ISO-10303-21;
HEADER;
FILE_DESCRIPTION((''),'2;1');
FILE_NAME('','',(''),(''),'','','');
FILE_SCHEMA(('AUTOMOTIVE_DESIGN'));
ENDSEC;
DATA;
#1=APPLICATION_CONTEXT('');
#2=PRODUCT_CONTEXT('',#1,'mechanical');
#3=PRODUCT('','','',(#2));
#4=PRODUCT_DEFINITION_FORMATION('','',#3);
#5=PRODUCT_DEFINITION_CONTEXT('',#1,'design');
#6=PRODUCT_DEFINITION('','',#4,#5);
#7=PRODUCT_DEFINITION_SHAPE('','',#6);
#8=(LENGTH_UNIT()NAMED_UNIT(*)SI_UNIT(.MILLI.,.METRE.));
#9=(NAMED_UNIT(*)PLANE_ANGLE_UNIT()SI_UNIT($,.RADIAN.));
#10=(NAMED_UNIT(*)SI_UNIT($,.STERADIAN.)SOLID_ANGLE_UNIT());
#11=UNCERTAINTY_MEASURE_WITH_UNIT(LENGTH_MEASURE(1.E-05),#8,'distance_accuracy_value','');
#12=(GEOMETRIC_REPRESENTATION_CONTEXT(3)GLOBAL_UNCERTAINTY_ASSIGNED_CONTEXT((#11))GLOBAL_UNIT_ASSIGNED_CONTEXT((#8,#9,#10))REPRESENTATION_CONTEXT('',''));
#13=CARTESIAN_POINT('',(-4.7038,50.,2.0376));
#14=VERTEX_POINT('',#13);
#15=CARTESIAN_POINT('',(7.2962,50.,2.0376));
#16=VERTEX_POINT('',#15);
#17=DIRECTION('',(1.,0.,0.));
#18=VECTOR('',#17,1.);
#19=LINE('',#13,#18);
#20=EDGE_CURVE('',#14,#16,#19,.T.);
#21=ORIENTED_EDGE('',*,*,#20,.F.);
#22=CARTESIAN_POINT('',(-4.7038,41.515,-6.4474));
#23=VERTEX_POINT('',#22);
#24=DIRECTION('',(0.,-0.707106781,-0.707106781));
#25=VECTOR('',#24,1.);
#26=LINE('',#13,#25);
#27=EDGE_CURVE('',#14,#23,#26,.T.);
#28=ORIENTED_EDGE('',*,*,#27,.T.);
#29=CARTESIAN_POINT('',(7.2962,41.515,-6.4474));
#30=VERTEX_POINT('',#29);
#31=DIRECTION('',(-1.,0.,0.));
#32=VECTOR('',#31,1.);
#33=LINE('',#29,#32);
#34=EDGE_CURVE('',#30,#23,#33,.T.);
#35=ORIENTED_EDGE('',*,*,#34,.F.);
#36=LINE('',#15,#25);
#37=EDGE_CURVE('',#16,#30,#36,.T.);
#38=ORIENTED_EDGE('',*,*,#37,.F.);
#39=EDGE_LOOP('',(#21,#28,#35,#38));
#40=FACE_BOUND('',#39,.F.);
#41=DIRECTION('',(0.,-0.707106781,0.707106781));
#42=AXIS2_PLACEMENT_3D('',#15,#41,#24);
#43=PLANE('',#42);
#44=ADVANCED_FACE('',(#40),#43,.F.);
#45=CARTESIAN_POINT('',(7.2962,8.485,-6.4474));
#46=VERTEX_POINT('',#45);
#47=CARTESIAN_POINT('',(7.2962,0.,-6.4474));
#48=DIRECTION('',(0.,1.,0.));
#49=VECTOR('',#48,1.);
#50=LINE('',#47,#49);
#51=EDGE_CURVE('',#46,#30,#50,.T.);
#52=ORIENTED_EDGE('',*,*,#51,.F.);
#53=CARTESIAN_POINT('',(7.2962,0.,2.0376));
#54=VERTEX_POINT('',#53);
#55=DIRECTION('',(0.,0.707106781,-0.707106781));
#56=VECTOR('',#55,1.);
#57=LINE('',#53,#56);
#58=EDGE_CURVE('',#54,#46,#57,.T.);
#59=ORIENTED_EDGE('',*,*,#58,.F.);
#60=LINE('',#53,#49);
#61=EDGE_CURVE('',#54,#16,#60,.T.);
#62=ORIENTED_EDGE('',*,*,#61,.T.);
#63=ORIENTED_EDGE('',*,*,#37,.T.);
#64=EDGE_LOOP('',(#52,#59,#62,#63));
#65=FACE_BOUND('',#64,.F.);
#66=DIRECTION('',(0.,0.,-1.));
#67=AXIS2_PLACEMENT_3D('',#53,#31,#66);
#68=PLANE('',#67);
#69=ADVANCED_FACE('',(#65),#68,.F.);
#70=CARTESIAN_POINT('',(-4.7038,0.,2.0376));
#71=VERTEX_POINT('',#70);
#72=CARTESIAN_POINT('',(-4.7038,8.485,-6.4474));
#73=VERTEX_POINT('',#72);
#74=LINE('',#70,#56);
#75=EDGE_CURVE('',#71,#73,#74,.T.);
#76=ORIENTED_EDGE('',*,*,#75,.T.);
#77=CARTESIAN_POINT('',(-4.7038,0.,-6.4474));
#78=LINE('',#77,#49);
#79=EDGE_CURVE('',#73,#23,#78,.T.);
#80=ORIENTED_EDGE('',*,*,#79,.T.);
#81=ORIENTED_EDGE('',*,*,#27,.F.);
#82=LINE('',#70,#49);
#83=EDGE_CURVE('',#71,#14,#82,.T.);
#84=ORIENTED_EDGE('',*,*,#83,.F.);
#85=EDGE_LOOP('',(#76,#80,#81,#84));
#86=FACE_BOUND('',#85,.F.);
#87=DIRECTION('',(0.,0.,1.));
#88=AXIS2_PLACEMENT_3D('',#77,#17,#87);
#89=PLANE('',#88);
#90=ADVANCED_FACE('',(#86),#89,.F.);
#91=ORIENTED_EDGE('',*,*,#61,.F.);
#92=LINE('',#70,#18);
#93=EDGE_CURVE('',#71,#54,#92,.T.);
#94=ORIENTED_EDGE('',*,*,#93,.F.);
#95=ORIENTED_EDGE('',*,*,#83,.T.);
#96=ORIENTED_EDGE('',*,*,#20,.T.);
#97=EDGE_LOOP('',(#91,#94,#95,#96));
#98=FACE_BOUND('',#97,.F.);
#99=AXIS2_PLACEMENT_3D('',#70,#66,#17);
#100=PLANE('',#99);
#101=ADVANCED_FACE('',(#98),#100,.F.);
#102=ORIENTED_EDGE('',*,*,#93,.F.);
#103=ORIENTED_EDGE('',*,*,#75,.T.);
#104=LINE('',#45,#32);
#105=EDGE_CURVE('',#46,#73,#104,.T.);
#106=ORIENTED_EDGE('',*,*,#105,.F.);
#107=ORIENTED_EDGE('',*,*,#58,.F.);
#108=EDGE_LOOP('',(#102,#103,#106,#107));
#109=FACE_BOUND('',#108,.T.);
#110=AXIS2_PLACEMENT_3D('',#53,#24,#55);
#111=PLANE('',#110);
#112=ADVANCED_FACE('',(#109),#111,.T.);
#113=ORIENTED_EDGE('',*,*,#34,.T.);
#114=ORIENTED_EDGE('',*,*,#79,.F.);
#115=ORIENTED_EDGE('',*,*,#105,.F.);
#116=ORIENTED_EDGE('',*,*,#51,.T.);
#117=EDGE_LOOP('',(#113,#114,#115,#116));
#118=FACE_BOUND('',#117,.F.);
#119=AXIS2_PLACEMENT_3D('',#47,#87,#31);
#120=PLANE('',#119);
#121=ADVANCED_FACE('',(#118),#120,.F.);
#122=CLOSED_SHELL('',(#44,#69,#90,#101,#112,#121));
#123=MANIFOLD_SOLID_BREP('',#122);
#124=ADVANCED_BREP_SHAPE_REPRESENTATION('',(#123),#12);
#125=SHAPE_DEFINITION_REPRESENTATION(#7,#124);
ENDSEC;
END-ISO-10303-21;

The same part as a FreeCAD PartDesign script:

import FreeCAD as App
import Part
import Sketcher
from FreeCAD import Vector
Q = App.Units.Quantity


def add_polygon(sketch, points):
    """Adds a closed chain of lines whose ends are joined by coincident constraints."""
    first, n = sketch.GeometryCount, len(points)
    for a, b in zip(points, points[1:] + points[:1]):
        sketch.addGeometry(Part.LineSegment(App.Vector(*a, 0), App.Vector(*b, 0)), False)
    for i in range(n):
        sketch.addConstraint(Sketcher.Constraint("Coincident", first + i, 2, first + (i + 1) % n, 1))

doc = App.newDocument("Part")
body = doc.addObject("PartDesign::Body", "Body")

# Sketch on XZ plane
sketch1 = body.newObject("Sketcher::SketchObject", "Sketch")
sketch1.AttachmentSupport = (doc.getObject("XZ_Plane"), [""])
sketch1.MapMode = "FlatFace"
add_polygon(sketch1, [(-4.7038, -6.4474), (-4.7038, 2.0376), (7.2962, 2.0376), (7.2962, -6.4474)])  # lines 0-3
sketch1.addConstraint(Sketcher.Constraint("Vertical", 0))
sketch1.addConstraint(Sketcher.Constraint("Horizontal", 1))
sketch1.addConstraint(Sketcher.Constraint("Vertical", 2))
sketch1.addConstraint(Sketcher.Constraint("Horizontal", 3))
sketch1.addConstraint(Sketcher.Constraint("DistanceX", 1, 1, 1, 2, Q("12 mm")))
sketch1.addConstraint(Sketcher.Constraint("DistanceY", 0, 1, 0, 2, Q("8.485 mm")))
sketch1.addConstraint(Sketcher.Constraint("DistanceX", 0, 2, -1, 1, Q("4.7038 mm")))
sketch1.addConstraint(Sketcher.Constraint("DistanceY", -1, 1, 0, 2, Q("2.0376 mm")))
pad1 = body.newObject("PartDesign::Pad", "Pad")
pad1.Profile = sketch1
pad1.Length = 50
pad1.Reversed = True

# Sketch on YZ plane
sketch2 = body.newObject("Sketcher::SketchObject", "Sketch001")
sketch2.AttachmentSupport = (doc.getObject("YZ_Plane"), [""])
sketch2.MapMode = "FlatFace"
sketch2.AttachmentOffset = App.Placement(Vector(0, 0, 7.2962), App.Rotation())
add_polygon(sketch2, [(8.485, -6.4474), (0, 2.0376), (0, -6.4474)])  # lines 0-2
add_polygon(sketch2, [(50, -6.4474), (50, 2.0376), (41.515, -6.4474)])  # lines 3-5
sketch2.addConstraint(Sketcher.Constraint("Vertical", 1))
sketch2.addConstraint(Sketcher.Constraint("Horizontal", 2))
sketch2.addConstraint(Sketcher.Constraint("Vertical", 3))
sketch2.addConstraint(Sketcher.Constraint("Horizontal", 5))
sketch2.addConstraint(Sketcher.Constraint("PointOnObject", 0, 2, -2))
sketch2.addConstraint(Sketcher.Constraint("Perpendicular", 0, 4))
sketch2.addConstraint(Sketcher.Constraint("Horizontal", 0, 2, 3, 2))
sketch2.addConstraint(Sketcher.Constraint("Horizontal", 2, 2, 4, 2))
sketch2.addConstraint(Sketcher.Constraint("Equal", 2, 5))
sketch2.addConstraint(Sketcher.Constraint("DistanceX", -1, 1, 3, 2, Q("50 mm")))
sketch2.addConstraint(Sketcher.Constraint("DistanceX", 2, 1, 2, 2, Q("8.485 mm")))
sketch2.addConstraint(Sketcher.Constraint("DistanceY", -1, 1, 0, 2, Q("2.0376 mm")))
pocket1 = body.newObject("PartDesign::Pocket", "Pocket")
pocket1.Profile = sketch2
pocket1.Length = 12

doc.recompute()
